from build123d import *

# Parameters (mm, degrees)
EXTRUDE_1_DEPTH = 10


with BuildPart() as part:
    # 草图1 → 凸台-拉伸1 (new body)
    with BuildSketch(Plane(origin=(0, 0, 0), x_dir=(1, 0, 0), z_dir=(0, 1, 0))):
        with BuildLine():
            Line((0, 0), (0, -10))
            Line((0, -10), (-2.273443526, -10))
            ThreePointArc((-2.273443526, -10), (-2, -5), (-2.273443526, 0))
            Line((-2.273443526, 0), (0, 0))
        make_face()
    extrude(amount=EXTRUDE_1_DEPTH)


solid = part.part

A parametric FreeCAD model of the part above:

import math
import FreeCAD as App
import Part
import Sketcher
from FreeCAD import Vector

doc = App.newDocument("Part")
params = doc.addObject("Spreadsheet::Sheet", "Params")
for row, (alias, value) in enumerate([
    ("sketch1_height", "10 mm"),
    ("sketch1_radius", "45.85 mm"),
    ("pad1_length", "10 mm"),
], start=1):
    params.set(f"A{row}", alias)
    params.set(f"B{row}", "=" + value)
    params.setAlias(f"B{row}", alias)

body = doc.addObject("PartDesign::Body", "Body")

sketch1 = doc.addObject("Sketcher::SketchObject", "Sketch")
body.addObject(sketch1)
sketch1.AttachmentSupport = (doc.XZ_Plane, [""])
sketch1.MapMode = "FlatFace"
sketch1.addGeometry([
    Part.LineSegment(Vector(0, 10, 0), Vector(0, 0, 0)),
    Part.LineSegment(Vector(0, 0, 0), Vector(-2.273444, 0, 0)),
    Part.ArcOfCircle(Part.Circle(Vector(-47.85, 5, 0), Vector(0, 0, 1), 45.85), math.radians(-6.260627), math.radians(6.260627)),
    Part.LineSegment(Vector(-2.273444, 10, 0), Vector(0, 10, 0)),
], False)
sketch1.addConstraint([
    Sketcher.Constraint("Coincident", 0, 2, 1, 1),
    Sketcher.Constraint("Coincident", 1, 2, 2, 1),
    Sketcher.Constraint("Coincident", 2, 2, 3, 1),
    Sketcher.Constraint("Coincident", 3, 2, 0, 1),
    Sketcher.Constraint("Vertical", 0),
    Sketcher.Constraint("Horizontal", 1),
    Sketcher.Constraint("Horizontal", 3),
    Sketcher.Constraint("Coincident", 0, 2, -1, 1),
    Sketcher.Constraint("Vertical", 1, 2, 2, 2),
    Sketcher.Constraint("DistanceY", 0, 2, 0, 1, 10.0),
    Sketcher.Constraint("Radius", 2, 45.85),
    Sketcher.Constraint("DistanceX", 2, 3, -1, 1, 47.85),
])
sketch1.setExpression("Constraints[9]", "Params.sketch1_height")
sketch1.setExpression("Constraints[10]", "Params.sketch1_radius")
pad1 = doc.addObject("PartDesign::Pad", "Pad")
body.addObject(pad1)
pad1.Profile = sketch1
pad1.setExpression("Length", "Params.pad1_length")
pad1.Reversed = True

doc.recompute()
